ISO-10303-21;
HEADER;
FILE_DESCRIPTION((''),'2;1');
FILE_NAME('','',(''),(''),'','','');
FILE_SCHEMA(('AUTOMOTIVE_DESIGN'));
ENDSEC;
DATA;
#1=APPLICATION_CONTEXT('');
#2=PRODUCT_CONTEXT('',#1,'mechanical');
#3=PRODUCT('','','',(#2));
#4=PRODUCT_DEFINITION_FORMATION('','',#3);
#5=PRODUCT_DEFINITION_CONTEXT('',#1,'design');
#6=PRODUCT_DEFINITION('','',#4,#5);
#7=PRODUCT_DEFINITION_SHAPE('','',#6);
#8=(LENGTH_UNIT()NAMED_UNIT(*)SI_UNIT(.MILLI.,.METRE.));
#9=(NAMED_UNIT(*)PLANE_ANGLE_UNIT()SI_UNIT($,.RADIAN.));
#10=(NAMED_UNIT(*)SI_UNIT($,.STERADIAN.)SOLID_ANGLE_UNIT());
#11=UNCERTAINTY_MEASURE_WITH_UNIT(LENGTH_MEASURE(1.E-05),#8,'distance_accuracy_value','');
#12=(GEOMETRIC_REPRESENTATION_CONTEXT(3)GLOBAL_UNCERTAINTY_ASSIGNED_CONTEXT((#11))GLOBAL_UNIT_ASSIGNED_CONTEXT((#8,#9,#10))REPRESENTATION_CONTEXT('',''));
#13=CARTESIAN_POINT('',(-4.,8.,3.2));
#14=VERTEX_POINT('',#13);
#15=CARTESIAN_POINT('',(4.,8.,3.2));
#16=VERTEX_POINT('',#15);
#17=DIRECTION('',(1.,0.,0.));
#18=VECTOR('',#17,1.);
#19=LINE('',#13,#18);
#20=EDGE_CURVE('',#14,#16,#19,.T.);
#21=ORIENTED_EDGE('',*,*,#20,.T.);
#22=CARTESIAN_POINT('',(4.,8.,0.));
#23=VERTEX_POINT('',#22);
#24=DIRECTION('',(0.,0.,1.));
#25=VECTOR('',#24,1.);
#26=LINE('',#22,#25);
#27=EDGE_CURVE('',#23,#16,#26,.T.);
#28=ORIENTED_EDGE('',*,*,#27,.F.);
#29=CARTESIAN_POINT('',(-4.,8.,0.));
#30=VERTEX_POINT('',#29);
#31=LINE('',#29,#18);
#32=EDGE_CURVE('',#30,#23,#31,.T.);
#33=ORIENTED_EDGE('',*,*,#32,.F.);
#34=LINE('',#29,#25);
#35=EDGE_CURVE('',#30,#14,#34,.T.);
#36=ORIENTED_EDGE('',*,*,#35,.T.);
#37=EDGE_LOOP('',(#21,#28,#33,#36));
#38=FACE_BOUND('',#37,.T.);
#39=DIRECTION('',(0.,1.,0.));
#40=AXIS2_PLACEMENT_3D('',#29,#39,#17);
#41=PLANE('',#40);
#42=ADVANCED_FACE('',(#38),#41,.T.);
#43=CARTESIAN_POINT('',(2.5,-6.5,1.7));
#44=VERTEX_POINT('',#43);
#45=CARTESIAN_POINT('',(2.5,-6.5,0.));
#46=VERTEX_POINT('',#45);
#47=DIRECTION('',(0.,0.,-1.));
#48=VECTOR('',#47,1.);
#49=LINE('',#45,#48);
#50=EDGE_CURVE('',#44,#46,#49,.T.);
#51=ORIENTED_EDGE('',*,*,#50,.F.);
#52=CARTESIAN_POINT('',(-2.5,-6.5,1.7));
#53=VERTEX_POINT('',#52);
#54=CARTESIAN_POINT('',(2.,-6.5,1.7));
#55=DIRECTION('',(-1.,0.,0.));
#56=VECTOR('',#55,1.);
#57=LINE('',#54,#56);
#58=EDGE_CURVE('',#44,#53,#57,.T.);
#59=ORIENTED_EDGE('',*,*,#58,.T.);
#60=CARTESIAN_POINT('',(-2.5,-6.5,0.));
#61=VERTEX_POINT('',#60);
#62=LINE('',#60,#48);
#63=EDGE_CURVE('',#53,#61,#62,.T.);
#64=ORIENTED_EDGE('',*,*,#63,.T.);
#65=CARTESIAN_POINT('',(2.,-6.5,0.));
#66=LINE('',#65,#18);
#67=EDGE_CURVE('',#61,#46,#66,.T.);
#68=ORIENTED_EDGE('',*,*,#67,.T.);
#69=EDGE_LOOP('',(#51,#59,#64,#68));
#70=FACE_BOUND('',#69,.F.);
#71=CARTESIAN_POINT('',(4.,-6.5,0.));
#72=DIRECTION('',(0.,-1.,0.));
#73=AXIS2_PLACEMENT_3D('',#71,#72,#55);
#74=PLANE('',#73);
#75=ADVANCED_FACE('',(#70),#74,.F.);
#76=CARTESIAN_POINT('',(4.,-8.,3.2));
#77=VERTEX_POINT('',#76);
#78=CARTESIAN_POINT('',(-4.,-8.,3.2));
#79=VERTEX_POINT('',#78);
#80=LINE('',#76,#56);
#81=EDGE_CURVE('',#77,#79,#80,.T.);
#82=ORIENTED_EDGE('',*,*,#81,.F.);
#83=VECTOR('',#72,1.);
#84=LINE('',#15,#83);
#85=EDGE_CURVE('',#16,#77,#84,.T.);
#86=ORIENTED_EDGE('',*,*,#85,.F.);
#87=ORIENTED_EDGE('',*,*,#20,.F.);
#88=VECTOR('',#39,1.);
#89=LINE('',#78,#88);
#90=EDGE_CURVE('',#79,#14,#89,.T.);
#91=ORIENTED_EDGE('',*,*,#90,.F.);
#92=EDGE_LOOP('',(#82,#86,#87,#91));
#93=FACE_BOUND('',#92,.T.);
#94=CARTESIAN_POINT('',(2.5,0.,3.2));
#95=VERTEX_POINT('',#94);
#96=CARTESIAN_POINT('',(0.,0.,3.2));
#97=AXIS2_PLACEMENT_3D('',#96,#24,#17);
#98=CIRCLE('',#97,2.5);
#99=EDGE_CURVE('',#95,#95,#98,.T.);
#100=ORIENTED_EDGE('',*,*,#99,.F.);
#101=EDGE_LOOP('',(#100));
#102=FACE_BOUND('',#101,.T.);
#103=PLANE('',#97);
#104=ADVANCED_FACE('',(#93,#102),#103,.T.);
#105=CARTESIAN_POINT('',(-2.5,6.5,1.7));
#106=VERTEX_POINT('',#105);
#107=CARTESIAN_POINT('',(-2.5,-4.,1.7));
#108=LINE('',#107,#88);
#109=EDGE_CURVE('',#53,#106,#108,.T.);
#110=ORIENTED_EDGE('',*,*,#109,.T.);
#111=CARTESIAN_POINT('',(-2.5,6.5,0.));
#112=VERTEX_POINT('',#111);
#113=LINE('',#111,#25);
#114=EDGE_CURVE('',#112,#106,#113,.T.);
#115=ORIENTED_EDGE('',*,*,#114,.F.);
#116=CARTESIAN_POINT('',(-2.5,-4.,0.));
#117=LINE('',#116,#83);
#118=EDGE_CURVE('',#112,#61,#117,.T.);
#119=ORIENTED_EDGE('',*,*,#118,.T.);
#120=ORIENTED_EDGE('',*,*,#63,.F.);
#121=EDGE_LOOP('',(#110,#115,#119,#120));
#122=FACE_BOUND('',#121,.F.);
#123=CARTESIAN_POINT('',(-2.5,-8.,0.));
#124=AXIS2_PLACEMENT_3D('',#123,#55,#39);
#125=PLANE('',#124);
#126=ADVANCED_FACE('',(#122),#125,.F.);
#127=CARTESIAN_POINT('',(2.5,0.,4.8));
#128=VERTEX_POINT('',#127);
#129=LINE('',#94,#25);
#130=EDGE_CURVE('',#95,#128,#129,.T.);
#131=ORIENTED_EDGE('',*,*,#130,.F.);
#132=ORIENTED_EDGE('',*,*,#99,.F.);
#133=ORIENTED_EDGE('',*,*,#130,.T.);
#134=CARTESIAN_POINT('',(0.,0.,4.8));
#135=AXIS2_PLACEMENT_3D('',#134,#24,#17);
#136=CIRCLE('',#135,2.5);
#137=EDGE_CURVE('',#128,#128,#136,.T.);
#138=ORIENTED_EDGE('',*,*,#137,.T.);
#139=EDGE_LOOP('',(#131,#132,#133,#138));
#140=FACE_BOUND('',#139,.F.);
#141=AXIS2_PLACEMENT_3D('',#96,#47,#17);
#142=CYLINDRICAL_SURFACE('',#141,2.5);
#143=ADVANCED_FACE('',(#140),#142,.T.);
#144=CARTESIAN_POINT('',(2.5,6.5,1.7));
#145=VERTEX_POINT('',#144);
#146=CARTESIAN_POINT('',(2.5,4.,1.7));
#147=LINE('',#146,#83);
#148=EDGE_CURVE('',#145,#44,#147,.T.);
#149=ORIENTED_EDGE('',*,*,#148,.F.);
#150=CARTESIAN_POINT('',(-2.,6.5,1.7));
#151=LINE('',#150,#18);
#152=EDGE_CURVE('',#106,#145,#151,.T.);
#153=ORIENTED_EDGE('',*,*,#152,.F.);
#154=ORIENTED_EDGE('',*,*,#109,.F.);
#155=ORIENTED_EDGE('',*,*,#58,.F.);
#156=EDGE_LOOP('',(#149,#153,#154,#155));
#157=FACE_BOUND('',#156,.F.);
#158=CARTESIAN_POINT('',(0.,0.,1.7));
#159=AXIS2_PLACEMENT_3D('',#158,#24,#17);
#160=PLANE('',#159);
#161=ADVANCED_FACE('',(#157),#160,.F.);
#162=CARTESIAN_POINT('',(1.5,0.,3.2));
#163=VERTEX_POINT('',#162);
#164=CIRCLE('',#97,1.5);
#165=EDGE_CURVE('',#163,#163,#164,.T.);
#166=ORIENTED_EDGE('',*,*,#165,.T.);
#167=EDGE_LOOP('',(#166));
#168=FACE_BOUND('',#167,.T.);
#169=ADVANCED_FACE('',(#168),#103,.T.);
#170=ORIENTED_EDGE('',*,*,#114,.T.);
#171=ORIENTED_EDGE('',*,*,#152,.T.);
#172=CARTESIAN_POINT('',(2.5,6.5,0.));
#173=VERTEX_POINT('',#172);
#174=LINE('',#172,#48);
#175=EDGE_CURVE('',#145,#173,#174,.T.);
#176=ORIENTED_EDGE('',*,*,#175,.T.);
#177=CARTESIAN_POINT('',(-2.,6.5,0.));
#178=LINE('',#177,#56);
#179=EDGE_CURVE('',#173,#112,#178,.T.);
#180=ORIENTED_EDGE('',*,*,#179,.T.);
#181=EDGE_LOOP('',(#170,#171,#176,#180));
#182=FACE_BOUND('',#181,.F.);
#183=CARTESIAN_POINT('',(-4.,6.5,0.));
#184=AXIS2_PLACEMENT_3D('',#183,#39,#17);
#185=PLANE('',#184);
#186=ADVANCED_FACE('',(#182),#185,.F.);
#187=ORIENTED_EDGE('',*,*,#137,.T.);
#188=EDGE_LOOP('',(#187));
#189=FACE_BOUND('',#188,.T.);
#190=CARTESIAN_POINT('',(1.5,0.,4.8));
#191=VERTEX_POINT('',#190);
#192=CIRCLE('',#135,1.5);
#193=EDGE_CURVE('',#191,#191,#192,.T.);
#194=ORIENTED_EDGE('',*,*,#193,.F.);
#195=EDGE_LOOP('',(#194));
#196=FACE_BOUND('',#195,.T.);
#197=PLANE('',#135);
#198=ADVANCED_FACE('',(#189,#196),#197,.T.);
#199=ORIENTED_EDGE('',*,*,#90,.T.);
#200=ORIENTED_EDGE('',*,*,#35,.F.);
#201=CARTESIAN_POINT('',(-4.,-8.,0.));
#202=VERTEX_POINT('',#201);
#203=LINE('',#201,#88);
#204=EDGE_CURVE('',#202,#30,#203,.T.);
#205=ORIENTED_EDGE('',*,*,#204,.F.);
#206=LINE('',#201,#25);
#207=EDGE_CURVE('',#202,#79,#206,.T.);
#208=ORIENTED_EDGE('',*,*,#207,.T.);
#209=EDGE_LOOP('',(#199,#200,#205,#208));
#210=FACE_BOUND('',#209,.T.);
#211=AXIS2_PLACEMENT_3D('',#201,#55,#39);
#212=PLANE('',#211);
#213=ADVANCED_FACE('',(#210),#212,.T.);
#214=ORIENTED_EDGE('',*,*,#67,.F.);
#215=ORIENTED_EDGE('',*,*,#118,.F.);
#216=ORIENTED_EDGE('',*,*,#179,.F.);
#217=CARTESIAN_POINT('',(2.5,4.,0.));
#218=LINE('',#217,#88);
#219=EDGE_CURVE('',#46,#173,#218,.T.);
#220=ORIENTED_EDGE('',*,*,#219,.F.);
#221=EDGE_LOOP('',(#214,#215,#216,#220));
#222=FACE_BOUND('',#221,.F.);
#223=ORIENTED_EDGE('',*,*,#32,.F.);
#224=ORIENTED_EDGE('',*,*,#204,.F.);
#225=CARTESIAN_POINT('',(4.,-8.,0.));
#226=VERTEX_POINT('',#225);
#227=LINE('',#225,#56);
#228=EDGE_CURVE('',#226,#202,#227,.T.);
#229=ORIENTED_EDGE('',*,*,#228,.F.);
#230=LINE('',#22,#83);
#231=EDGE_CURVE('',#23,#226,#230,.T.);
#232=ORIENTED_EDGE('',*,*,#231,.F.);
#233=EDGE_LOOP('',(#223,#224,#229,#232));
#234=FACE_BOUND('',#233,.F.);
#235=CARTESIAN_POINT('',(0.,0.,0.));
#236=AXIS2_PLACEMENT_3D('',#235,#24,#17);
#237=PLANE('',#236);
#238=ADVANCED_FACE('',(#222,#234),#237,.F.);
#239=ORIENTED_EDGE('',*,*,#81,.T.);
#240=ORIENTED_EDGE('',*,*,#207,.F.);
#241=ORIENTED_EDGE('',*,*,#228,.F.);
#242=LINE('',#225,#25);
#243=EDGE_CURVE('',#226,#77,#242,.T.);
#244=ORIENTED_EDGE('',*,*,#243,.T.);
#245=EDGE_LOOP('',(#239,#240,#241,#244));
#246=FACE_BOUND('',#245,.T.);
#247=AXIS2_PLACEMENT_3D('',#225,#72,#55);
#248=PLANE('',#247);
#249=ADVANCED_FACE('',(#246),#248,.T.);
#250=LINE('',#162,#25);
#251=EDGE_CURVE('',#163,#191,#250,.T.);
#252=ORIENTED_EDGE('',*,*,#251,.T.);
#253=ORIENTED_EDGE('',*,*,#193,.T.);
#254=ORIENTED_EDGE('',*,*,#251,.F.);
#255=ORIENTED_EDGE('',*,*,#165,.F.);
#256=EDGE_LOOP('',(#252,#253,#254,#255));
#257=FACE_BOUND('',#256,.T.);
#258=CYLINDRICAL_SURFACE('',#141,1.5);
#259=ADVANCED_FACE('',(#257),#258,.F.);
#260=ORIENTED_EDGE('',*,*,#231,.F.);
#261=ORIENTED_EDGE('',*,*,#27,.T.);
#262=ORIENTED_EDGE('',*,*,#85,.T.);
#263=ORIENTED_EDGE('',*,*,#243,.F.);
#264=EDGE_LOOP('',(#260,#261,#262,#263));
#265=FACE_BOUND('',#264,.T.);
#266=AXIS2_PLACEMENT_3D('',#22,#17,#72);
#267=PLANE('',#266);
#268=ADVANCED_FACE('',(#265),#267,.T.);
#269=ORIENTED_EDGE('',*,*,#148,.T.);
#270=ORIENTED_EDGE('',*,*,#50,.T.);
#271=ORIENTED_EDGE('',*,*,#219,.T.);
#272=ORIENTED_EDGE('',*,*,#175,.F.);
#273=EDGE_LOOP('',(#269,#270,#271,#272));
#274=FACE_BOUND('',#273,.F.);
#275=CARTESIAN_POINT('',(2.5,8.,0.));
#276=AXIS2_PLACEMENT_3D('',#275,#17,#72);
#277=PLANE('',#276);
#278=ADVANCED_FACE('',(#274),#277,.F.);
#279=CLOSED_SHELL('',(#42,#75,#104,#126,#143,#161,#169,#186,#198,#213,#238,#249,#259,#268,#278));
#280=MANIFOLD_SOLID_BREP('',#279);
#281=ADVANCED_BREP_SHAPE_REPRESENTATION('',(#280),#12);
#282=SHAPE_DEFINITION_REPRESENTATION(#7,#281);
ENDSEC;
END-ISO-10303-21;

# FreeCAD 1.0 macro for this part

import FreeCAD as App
import Part
import Sketcher

V = App.Vector
Q = App.Units.Quantity


def faces_at(feature, points):
    """Names of the faces that lie closest to the given points."""
    faces = feature.Shape.Faces
    near = lambda p: min(range(len(faces)), key=lambda i: faces[i].distToShape(Part.Vertex(*p))[0])
    return sorted({f"Face{near(p) + 1}" for p in points})


def add_polygon(sketch, points):
    """Adds a closed chain of lines whose ends are joined by coincident constraints."""
    first, n = sketch.GeometryCount, len(points)
    for a, b in zip(points, points[1:] + points[:1]):
        sketch.addGeometry(Part.LineSegment(App.Vector(*a, 0), App.Vector(*b, 0)), False)
    for i in range(n):
        sketch.addConstraint(Sketcher.Constraint("Coincident", first + i, 2, first + (i + 1) % n, 1))

doc = App.newDocument("Part")
body = doc.addObject("PartDesign::Body", "Body")

# Sketch on XY plane
sketch1 = doc.addObject("Sketcher::SketchObject", "Sketch")
body.addObject(sketch1)
sketch1.AttachmentSupport = (doc.XY_Plane, [""])
sketch1.MapMode = "FlatFace"
add_polygon(sketch1, [(4, 8), (-4, 8), (-4, -8), (4, -8)])  # lines 0-3
sketch1.addConstraint([
    Sketcher.Constraint("Horizontal", 0),
    Sketcher.Constraint("Vertical", 1),
    Sketcher.Constraint("Horizontal", 2),
    Sketcher.Constraint("Vertical", 3),
    Sketcher.Constraint("Symmetric", 0, 2, 2, 2, -1, 1),
    Sketcher.Constraint("DistanceX", 0, 2, 0, 1, Q("8 mm")),
    Sketcher.Constraint("DistanceY", 1, 2, 1, 1, Q("16 mm")),
])
pad1 = doc.addObject("PartDesign::Pad", "Pad")
body.addObject(pad1)
pad1.Profile = sketch1
pad1.Length = 3.2
doc.recompute()

thickness = doc.addObject("PartDesign::Thickness", "Thickness")
body.addObject(thickness)
thickness.Base = (pad1, faces_at(pad1, [(-1.333, 2.667, 0)]))
thickness.Value = 1.5
thickness.Reversed = True
thickness.Join = "Intersection"

# Sketch on XY plane
sketch2 = doc.addObject("Sketcher::SketchObject", "Sketch001")
body.addObject(sketch2)
sketch2.AttachmentSupport = (doc.XY_Plane, [""])
sketch2.MapMode = "FlatFace"
sketch2.AttachmentOffset = App.Placement(V(0, 0, 3.2), App.Rotation())
sketch2.addGeometry([
    Part.Circle(V(0, 0, 0), V(0, 0, 1), 2.5),
    Part.Circle(V(0, 0, 0), V(0, 0, 1), 1.5),
], False)
sketch2.addConstraint([
    Sketcher.Constraint("Coincident", 0, 3, -1, 1),
    Sketcher.Constraint("Coincident", 1, 3, -1, 1),
    Sketcher.Constraint("Diameter", 0, Q("5 mm")),
    Sketcher.Constraint("Diameter", 1, Q("3 mm")),
])
pad2 = doc.addObject("PartDesign::Pad", "Pad001")
body.addObject(pad2)
pad2.Profile = sketch2
pad2.Length = 1.6

doc.recompute()
